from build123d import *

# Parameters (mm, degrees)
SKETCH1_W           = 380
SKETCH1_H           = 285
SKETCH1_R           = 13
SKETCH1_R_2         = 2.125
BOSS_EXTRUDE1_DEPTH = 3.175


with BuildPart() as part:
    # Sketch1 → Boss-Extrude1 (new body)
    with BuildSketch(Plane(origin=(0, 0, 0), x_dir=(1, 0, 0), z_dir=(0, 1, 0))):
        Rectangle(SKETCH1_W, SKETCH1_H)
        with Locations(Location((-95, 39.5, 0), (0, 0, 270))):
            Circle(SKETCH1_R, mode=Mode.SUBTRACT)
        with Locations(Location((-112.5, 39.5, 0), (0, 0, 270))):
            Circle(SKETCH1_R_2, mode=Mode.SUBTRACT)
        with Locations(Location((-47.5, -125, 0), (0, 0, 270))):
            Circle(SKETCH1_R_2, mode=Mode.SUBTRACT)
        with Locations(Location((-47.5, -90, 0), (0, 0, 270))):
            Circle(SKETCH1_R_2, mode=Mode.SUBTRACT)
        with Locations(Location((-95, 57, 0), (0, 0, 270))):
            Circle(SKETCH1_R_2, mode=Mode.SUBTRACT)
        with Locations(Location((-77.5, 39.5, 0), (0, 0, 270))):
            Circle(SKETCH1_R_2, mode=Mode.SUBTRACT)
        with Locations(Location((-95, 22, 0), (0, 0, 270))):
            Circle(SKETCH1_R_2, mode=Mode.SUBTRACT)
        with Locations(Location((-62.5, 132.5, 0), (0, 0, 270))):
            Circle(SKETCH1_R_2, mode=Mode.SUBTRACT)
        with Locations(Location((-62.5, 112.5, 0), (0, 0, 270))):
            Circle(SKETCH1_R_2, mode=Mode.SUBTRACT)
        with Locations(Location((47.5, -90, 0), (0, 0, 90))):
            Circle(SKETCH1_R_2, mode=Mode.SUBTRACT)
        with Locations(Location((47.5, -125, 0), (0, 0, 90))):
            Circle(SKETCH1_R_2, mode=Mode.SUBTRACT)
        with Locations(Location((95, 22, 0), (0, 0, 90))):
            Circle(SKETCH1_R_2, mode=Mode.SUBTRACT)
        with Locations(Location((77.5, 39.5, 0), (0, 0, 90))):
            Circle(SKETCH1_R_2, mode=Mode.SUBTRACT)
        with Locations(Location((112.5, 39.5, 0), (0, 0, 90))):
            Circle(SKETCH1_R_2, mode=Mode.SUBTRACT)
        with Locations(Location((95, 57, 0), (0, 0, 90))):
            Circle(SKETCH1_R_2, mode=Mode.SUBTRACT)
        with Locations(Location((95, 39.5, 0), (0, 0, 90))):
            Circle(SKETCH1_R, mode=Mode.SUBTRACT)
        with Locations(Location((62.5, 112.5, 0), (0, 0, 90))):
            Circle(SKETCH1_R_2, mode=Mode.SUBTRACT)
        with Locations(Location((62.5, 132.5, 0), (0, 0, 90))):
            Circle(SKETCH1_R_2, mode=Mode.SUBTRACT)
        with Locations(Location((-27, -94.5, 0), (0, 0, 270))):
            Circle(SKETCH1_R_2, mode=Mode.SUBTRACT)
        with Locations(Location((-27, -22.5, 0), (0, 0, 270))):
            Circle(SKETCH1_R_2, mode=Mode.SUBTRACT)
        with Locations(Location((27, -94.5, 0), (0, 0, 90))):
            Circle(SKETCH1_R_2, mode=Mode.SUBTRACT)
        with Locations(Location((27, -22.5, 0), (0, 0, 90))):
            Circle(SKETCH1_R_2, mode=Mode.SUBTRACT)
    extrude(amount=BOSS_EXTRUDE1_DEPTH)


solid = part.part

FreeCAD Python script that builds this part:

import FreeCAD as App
import Part
import Sketcher
Q = App.Units.Quantity

doc = App.newDocument("Part")
body = doc.addObject("PartDesign::Body", "Body")

# Sketch on XZ plane
sketch1 = body.newObject("Sketcher::SketchObject", "Sketch")
sketch1.AttachmentSupport = (doc.getObject("XZ_Plane"), [""])
sketch1.MapMode = "FlatFace"
sketch1.addGeometry([
    Part.LineSegment(App.Vector(-190, -142.5, 0), App.Vector(-190, 142.5, 0)),  # 0
    Part.LineSegment(App.Vector(-190, 142.5, 0), App.Vector(190, 142.5, 0)),  # 1
    Part.LineSegment(App.Vector(190, 142.5, 0), App.Vector(190, -142.5, 0)),  # 2
    Part.LineSegment(App.Vector(190, -142.5, 0), App.Vector(-190, -142.5, 0)),  # 3
    Part.Circle(App.Vector(-47.5, 125, 0), App.Vector(0, 0, 1), 2.1),  # 4
    Part.Circle(App.Vector(-27, 94.5, 0), App.Vector(0, 0, 1), 2.1),  # 5
    Part.Circle(App.Vector(-47.5, 90, 0), App.Vector(0, 0, 1), 2.1),  # 6
    Part.Circle(App.Vector(-27, 22.5, 0), App.Vector(0, 0, 1), 2.1),  # 7
    Part.Circle(App.Vector(27, 94.5, 0), App.Vector(0, 0, 1), 2.1),  # 8
    Part.Circle(App.Vector(47.5, 125, 0), App.Vector(0, 0, 1), 2.1),  # 9
    Part.Circle(App.Vector(47.5, 90, 0), App.Vector(0, 0, 1), 2.1),  # 10
    Part.Circle(App.Vector(27, 22.5, 0), App.Vector(0, 0, 1), 2.1),  # 11
    Part.Circle(App.Vector(-95, -22, 0), App.Vector(0, 0, 1), 2.1),  # 12
    Part.Circle(App.Vector(-112.5, -39.5, 0), App.Vector(0, 0, 1), 2.1),  # 13
    Part.Circle(App.Vector(-95, -39.5, 0), App.Vector(0, 0, 1), 13),  # 14
    Part.Circle(App.Vector(-95, -57, 0), App.Vector(0, 0, 1), 2.1),  # 15
    Part.Circle(App.Vector(-77.5, -39.5, 0), App.Vector(0, 0, 1), 2.1),  # 16
    Part.Circle(App.Vector(-62.5, -112.5, 0), App.Vector(0, 0, 1), 2.1),  # 17
    Part.Circle(App.Vector(-62.5, -132.5, 0), App.Vector(0, 0, 1), 2.1),  # 18
    Part.Circle(App.Vector(95, -22, 0), App.Vector(0, 0, 1), 2.1),  # 19
    Part.Circle(App.Vector(77.5, -39.5, 0), App.Vector(0, 0, 1), 2.1),  # 20
    Part.Circle(App.Vector(95, -39.5, 0), App.Vector(0, 0, 1), 13),  # 21
    Part.Circle(App.Vector(112.5, -39.5, 0), App.Vector(0, 0, 1), 2.1),  # 22
    Part.Circle(App.Vector(95, -57, 0), App.Vector(0, 0, 1), 2.1),  # 23
    Part.Circle(App.Vector(62.5, -112.5, 0), App.Vector(0, 0, 1), 2.1),  # 24
    Part.Circle(App.Vector(62.5, -132.5, 0), App.Vector(0, 0, 1), 2.1),  # 25
], False)
sketch1.addConstraint([
    Sketcher.Constraint("Coincident", 0, 2, 1, 1),
    Sketcher.Constraint("Coincident", 1, 2, 2, 1),
    Sketcher.Constraint("Coincident", 2, 2, 3, 1),
    Sketcher.Constraint("Coincident", 3, 2, 0, 1),
    Sketcher.Constraint("Vertical", 0),
    Sketcher.Constraint("Horizontal", 1),
    Sketcher.Constraint("Vertical", 2),
    Sketcher.Constraint("Horizontal", 3),
    Sketcher.Constraint("Equal", 4, 5),
    Sketcher.Constraint("Equal", 5, 6),
    Sketcher.Constraint("Equal", 6, 7),
    Sketcher.Constraint("Equal", 7, 8),
    Sketcher.Constraint("Equal", 8, 9),
    Sketcher.Constraint("Equal", 9, 10),
    Sketcher.Constraint("Equal", 10, 11),
    Sketcher.Constraint("Equal", 11, 12),
    Sketcher.Constraint("Equal", 12, 13),
    Sketcher.Constraint("Equal", 13, 15),
    Sketcher.Constraint("Equal", 15, 16),
    Sketcher.Constraint("Equal", 16, 17),
    Sketcher.Constraint("Equal", 17, 18),
    Sketcher.Constraint("Equal", 18, 19),
    Sketcher.Constraint("Equal", 19, 20),
    Sketcher.Constraint("Equal", 14, 21),
    Sketcher.Constraint("Equal", 20, 22),
    Sketcher.Constraint("Equal", 22, 23),
    Sketcher.Constraint("Equal", 23, 24),
    Sketcher.Constraint("Equal", 24, 25),
    Sketcher.Constraint("Symmetric", 0, 2, 2, 2, -1, 1),
    Sketcher.Constraint("Symmetric", 5, 3, 8, 3, -2),
    Sketcher.Constraint("Symmetric", 4, 3, 9, 3, -2),
    Sketcher.Constraint("Symmetric", 6, 3, 10, 3, -2),
    Sketcher.Constraint("Symmetric", 7, 3, 11, 3, -2),
    Sketcher.Constraint("Symmetric", 12, 3, 19, 3, -2),
    Sketcher.Constraint("Symmetric", 16, 3, 20, 3, -2),
    Sketcher.Constraint("Symmetric", 14, 3, 21, 3, -2),
    Sketcher.Constraint("Symmetric", 13, 3, 22, 3, -2),
    Sketcher.Constraint("Symmetric", 15, 3, 23, 3, -2),
    Sketcher.Constraint("Symmetric", 17, 3, 24, 3, -2),
    Sketcher.Constraint("Symmetric", 18, 3, 25, 3, -2),
    Sketcher.Constraint("Horizontal", 13, 3, 14, 3),
    Sketcher.Constraint("Horizontal", 14, 3, 16, 3),
    Sketcher.Constraint("Vertical", 4, 3, 6, 3),
    Sketcher.Constraint("Vertical", 5, 3, 7, 3),
    Sketcher.Constraint("Vertical", 12, 3, 14, 3),
    Sketcher.Constraint("Vertical", 14, 3, 15, 3),
    Sketcher.Constraint("Vertical", 17, 3, 18, 3),
    Sketcher.Constraint("Diameter", 14, Q("26 mm")),
    Sketcher.Constraint("Diameter", 4, Q("4.25 mm")),
    Sketcher.Constraint("DistanceX", 1, 1, 1, 2, Q("380 mm")),
    Sketcher.Constraint("DistanceY", 0, 1, 0, 2, Q("285 mm")),
    Sketcher.Constraint("DistanceY", -1, 1, 4, 3, Q("125 mm")),
    Sketcher.Constraint("DistanceX", 5, 3, -1, 1, Q("27 mm")),
    Sketcher.Constraint("DistanceY", -1, 1, 6, 3, Q("90 mm")),
    Sketcher.Constraint("DistanceX", 12, 3, -1, 1, Q("95 mm")),
    Sketcher.Constraint("DistanceY", 12, 3, -1, 1, Q("22 mm")),
    Sketcher.Constraint("DistanceY", 15, 3, -1, 1, Q("57 mm")),
    Sketcher.Constraint("DistanceY", 7, 3, 5, 3, Q("72 mm")),
    Sketcher.Constraint("DistanceX", 4, 3, 9, 3, Q("95 mm")),
    Sketcher.Constraint("DistanceY", 13, 3, 7, 3, Q("62 mm")),
    Sketcher.Constraint("DistanceX", 13, 3, 6, 3, Q("65 mm")),
    Sketcher.Constraint("DistanceX", 13, 3, 16, 3, Q("35 mm")),
    Sketcher.Constraint("DistanceX", 16, 3, 17, 3, Q("15 mm")),
    Sketcher.Constraint("DistanceY", 17, 3, 16, 3, Q("73 mm")),
    Sketcher.Constraint("DistanceY", 18, 3, 17, 3, Q("20 mm")),
    Sketcher.Constraint("DistanceY", 5, 3, 0, 2, Q("48 mm")),
])
pad1 = body.newObject("PartDesign::Pad", "Pad")
pad1.Profile = sketch1
pad1.Length = 3.175
pad1.Reversed = True

doc.recompute()
